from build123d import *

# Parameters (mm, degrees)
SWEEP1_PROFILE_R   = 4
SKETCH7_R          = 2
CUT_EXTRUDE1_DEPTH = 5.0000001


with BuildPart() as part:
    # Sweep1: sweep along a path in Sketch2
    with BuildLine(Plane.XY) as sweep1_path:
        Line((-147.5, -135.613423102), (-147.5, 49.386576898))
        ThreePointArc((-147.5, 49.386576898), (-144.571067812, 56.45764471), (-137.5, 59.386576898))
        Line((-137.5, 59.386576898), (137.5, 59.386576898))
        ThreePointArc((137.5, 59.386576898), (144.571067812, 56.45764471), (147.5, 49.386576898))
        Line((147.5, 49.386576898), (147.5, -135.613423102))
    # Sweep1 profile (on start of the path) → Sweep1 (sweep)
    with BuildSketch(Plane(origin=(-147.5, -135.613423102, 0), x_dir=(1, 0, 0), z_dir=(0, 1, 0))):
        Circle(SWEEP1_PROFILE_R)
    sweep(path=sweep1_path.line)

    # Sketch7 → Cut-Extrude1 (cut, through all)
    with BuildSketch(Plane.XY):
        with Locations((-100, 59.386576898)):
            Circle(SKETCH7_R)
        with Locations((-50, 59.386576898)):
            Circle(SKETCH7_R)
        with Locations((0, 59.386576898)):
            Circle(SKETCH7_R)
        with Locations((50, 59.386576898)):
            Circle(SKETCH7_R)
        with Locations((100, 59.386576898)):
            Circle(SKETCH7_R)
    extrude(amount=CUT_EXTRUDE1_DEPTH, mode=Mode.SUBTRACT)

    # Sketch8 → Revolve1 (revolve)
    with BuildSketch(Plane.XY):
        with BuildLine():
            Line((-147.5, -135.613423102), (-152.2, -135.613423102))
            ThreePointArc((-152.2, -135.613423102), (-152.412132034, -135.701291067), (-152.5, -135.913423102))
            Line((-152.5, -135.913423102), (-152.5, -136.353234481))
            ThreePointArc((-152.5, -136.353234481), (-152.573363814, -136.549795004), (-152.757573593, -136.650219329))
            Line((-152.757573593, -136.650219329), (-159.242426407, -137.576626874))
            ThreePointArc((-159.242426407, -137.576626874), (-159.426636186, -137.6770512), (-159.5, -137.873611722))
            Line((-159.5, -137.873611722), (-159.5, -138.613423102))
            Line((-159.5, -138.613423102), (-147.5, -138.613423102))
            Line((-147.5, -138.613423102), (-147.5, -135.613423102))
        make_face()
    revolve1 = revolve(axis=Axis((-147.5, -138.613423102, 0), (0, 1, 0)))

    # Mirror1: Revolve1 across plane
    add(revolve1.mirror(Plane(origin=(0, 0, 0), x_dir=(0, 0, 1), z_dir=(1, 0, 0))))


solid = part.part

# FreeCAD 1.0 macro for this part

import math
import FreeCAD as App
import Part
import Sketcher

doc = App.newDocument("Part")
body = doc.addObject("PartDesign::Body", "Body")

sketch1 = body.newObject("Sketcher::SketchObject", "Sketch")
sketch1.AttachmentSupport = (doc.getObject("XZ_Plane"), [""])
sketch1.MapMode = "FlatFace"
sketch1.AttachmentOffset = App.Placement(App.Vector(0, 0, 135.613423), App.Rotation())
sketch1.addGeometry(Part.Circle(App.Vector(-147.5, 0, 0), App.Vector(0, 0, 1), 4), False)
sketch1.addConstraint([
    Sketcher.Constraint("PointOnObject", 0, 3, -1),
    Sketcher.Constraint("Diameter", 0, 8.0),
    Sketcher.Constraint("DistanceX", 0, 3, -1, 1, 147.5),
])

sketch2 = body.newObject("Sketcher::SketchObject", "Sketch001")
sketch2.AttachmentSupport = (doc.getObject("XY_Plane"), [""])
sketch2.MapMode = "FlatFace"
sketch2.addGeometry([
    Part.LineSegment(App.Vector(-148, -136, 0), App.Vector(-148, 49, 0)),
    Part.ArcOfCircle(Part.Circle(App.Vector(-138, 49, 0), App.Vector(0, 0, 1), 10), math.radians(90), math.radians(180)),
    Part.LineSegment(App.Vector(-138, 59, 0), App.Vector(138, 59, 0)),
    Part.ArcOfCircle(Part.Circle(App.Vector(138, 49, 0), App.Vector(0, 0, 1), 10), math.radians(0), math.radians(90)),
    Part.LineSegment(App.Vector(148, 49, 0), App.Vector(148, -136, 0)),
], False)
sketch2.addConstraint([
    Sketcher.Constraint("Tangent", 0, 2, 1, 2),
    Sketcher.Constraint("Tangent", 1, 1, 2, 1),
    Sketcher.Constraint("Tangent", 2, 2, 3, 2),
    Sketcher.Constraint("Tangent", 3, 1, 4, 1),
    Sketcher.Constraint("Vertical", 0),
    Sketcher.Constraint("Horizontal", 2),
    Sketcher.Constraint("Vertical", 4),
    Sketcher.Constraint("Equal", 1, 3),
    Sketcher.Constraint("Symmetric", 0, 1, 4, 2, -2),
    Sketcher.Constraint("Radius", 1, 10.0),
    Sketcher.Constraint("DistanceX", 2, 1, 2, 2, 275.0),
    Sketcher.Constraint("DistanceY", 0, 1, 0, 2, 185.0),
    Sketcher.Constraint("DistanceY", -1, 1, 1, 3, 49.386577),
])
doc.recompute()

additivepipe = body.newObject("PartDesign::AdditivePipe", "AdditivePipe")
additivepipe.Profile = sketch1
additivepipe.Spine = (sketch2, ["Edge1", "Edge2", "Edge3", "Edge4", "Edge5"])

sketch3 = body.newObject("Sketcher::SketchObject", "Sketch002")
sketch3.AttachmentSupport = (doc.getObject("XY_Plane"), [""])
sketch3.MapMode = "FlatFace"
sketch3.addGeometry([
    Part.Circle(App.Vector(-100, 59.4, 0), App.Vector(0, 0, 1), 2),
    Part.Circle(App.Vector(-50, 59.4, 0), App.Vector(0, 0, 1), 2),
    Part.Circle(App.Vector(0, 59.4, 0), App.Vector(0, 0, 1), 2),
    Part.Circle(App.Vector(50, 59.4, 0), App.Vector(0, 0, 1), 2),
    Part.Circle(App.Vector(100, 59.4, 0), App.Vector(0, 0, 1), 2),
], False)
sketch3.addConstraint([
    Sketcher.Constraint("Equal", 0, 1),
    Sketcher.Constraint("Equal", 1, 2),
    Sketcher.Constraint("Equal", 2, 3),
    Sketcher.Constraint("Equal", 3, 4),
    Sketcher.Constraint("Symmetric", 1, 3, 3, 3, -2),
    Sketcher.Constraint("Symmetric", 0, 3, 4, 3, -2),
    Sketcher.Constraint("PointOnObject", 2, 3, -2),
    Sketcher.Constraint("Horizontal", 0, 3, 1, 3),
    Sketcher.Constraint("Horizontal", 1, 3, 2, 3),
    Sketcher.Constraint("Diameter", 0, 4.0),
    Sketcher.Constraint("DistanceX", 0, 3, -1, 1, 100.0),
    Sketcher.Constraint("DistanceX", 1, 3, -1, 1, 50.0),
    Sketcher.Constraint("DistanceY", -1, 1, 0, 3, 59.386577),
])
pocket1 = body.newObject("PartDesign::Pocket", "Pocket")
pocket1.Profile = sketch3
pocket1.Type = "ThroughAll"
pocket1.Reversed = True

sketch4 = body.newObject("Sketcher::SketchObject", "Sketch003")
sketch4.AttachmentSupport = (doc.getObject("XY_Plane"), [""])
sketch4.MapMode = "FlatFace"
sketch4.addGeometry([
    Part.LineSegment(App.Vector(-147.5, -135.61, 0), App.Vector(-152.2, -135.61, 0)),
    Part.ArcOfCircle(Part.Circle(App.Vector(-152.2, -135.91, 0), App.Vector(0, 0, 1), 0.3), math.radians(90), math.radians(180)),
    Part.LineSegment(App.Vector(-152.5, -135.91, 0), App.Vector(-152.5, -136.35, 0)),
    Part.ArcOfCircle(Part.Circle(App.Vector(-152.8, -136.35, 0), App.Vector(0, 0, 1), 0.3), math.radians(-82), math.radians(0)),
    Part.LineSegment(App.Vector(-152.76, -136.65, 0), App.Vector(-159.24, -137.58, 0)),
    Part.ArcOfCircle(Part.Circle(App.Vector(-159.2, -137.87, 0), App.Vector(0, 0, 1), 0.3), math.radians(98), math.radians(180)),
    Part.LineSegment(App.Vector(-159.5, -137.87, 0), App.Vector(-159.5, -138.61, 0)),
    Part.LineSegment(App.Vector(-159.5, -138.61, 0), App.Vector(-147.5, -138.61, 0)),
    Part.LineSegment(App.Vector(-147.5, -138.61, 0), App.Vector(-147.5, -135.61, 0)),
], False)
sketch4.addGeometry(Part.LineSegment(App.Vector(-147.5, -138.61, 0), App.Vector(-147.5, -135.61, 0)), True)
sketch4.addConstraint([
    Sketcher.Constraint("Tangent", 0, 2, 1, 1),
    Sketcher.Constraint("Tangent", 1, 2, 2, 1),
    Sketcher.Constraint("Tangent", 2, 2, 3, 2),
    Sketcher.Constraint("Tangent", 3, 1, 4, 1),
    Sketcher.Constraint("Tangent", 4, 2, 5, 1),
    Sketcher.Constraint("Tangent", 5, 2, 6, 1),
    Sketcher.Constraint("Coincident", 6, 2, 7, 1),
    Sketcher.Constraint("Coincident", 7, 2, 8, 1),
    Sketcher.Constraint("Coincident", 8, 2, 0, 1),
    Sketcher.Constraint("Horizontal", 0),
    Sketcher.Constraint("Vertical", 2),
    Sketcher.Constraint("Vertical", 6),
    Sketcher.Constraint("Horizontal", 7),
    Sketcher.Constraint("Vertical", 8),
    Sketcher.Constraint("Vertical", 9),
    Sketcher.Constraint("Coincident", 9, 1, 7, 2),
    Sketcher.Constraint("Equal", 1, 3),
    Sketcher.Constraint("Equal", 3, 5),
    Sketcher.Constraint("Horizontal", 0, 2, 9, 2),
    Sketcher.Constraint("Radius", 1, 0.3),
    Sketcher.Constraint("DistanceX", 7, 1, 7, 2, 12.0),
    Sketcher.Constraint("DistanceY", 8, 1, 8, 2, 3.0),
    Sketcher.Constraint("DistanceX", 0, 2, 0, 1, 4.7),
    Sketcher.Constraint("DistanceX", 1, 3, -1, 1, 152.2),
    Sketcher.Constraint("DistanceY", 2, 2, 2, 1, 0.439811),
    Sketcher.Constraint("DistanceY", 6, 2, 6, 1, 0.739811),
    Sketcher.Constraint("DistanceY", 5, 3, -1, 1, 137.873612),
])
revolution = body.newObject("PartDesign::Revolution", "Revolution")
revolution.Profile = sketch4
revolution.ReferenceAxis = (sketch4, ["Axis0"])
revolution.Angle = 360
doc.recompute()

mirrored = body.newObject("PartDesign::Mirrored", "Mirrored")
mirrored.Originals = [revolution]
mirrored.MirrorPlane = (doc.getObject("YZ_Plane"), [""])
body.Tip = mirrored

doc.recompute()
